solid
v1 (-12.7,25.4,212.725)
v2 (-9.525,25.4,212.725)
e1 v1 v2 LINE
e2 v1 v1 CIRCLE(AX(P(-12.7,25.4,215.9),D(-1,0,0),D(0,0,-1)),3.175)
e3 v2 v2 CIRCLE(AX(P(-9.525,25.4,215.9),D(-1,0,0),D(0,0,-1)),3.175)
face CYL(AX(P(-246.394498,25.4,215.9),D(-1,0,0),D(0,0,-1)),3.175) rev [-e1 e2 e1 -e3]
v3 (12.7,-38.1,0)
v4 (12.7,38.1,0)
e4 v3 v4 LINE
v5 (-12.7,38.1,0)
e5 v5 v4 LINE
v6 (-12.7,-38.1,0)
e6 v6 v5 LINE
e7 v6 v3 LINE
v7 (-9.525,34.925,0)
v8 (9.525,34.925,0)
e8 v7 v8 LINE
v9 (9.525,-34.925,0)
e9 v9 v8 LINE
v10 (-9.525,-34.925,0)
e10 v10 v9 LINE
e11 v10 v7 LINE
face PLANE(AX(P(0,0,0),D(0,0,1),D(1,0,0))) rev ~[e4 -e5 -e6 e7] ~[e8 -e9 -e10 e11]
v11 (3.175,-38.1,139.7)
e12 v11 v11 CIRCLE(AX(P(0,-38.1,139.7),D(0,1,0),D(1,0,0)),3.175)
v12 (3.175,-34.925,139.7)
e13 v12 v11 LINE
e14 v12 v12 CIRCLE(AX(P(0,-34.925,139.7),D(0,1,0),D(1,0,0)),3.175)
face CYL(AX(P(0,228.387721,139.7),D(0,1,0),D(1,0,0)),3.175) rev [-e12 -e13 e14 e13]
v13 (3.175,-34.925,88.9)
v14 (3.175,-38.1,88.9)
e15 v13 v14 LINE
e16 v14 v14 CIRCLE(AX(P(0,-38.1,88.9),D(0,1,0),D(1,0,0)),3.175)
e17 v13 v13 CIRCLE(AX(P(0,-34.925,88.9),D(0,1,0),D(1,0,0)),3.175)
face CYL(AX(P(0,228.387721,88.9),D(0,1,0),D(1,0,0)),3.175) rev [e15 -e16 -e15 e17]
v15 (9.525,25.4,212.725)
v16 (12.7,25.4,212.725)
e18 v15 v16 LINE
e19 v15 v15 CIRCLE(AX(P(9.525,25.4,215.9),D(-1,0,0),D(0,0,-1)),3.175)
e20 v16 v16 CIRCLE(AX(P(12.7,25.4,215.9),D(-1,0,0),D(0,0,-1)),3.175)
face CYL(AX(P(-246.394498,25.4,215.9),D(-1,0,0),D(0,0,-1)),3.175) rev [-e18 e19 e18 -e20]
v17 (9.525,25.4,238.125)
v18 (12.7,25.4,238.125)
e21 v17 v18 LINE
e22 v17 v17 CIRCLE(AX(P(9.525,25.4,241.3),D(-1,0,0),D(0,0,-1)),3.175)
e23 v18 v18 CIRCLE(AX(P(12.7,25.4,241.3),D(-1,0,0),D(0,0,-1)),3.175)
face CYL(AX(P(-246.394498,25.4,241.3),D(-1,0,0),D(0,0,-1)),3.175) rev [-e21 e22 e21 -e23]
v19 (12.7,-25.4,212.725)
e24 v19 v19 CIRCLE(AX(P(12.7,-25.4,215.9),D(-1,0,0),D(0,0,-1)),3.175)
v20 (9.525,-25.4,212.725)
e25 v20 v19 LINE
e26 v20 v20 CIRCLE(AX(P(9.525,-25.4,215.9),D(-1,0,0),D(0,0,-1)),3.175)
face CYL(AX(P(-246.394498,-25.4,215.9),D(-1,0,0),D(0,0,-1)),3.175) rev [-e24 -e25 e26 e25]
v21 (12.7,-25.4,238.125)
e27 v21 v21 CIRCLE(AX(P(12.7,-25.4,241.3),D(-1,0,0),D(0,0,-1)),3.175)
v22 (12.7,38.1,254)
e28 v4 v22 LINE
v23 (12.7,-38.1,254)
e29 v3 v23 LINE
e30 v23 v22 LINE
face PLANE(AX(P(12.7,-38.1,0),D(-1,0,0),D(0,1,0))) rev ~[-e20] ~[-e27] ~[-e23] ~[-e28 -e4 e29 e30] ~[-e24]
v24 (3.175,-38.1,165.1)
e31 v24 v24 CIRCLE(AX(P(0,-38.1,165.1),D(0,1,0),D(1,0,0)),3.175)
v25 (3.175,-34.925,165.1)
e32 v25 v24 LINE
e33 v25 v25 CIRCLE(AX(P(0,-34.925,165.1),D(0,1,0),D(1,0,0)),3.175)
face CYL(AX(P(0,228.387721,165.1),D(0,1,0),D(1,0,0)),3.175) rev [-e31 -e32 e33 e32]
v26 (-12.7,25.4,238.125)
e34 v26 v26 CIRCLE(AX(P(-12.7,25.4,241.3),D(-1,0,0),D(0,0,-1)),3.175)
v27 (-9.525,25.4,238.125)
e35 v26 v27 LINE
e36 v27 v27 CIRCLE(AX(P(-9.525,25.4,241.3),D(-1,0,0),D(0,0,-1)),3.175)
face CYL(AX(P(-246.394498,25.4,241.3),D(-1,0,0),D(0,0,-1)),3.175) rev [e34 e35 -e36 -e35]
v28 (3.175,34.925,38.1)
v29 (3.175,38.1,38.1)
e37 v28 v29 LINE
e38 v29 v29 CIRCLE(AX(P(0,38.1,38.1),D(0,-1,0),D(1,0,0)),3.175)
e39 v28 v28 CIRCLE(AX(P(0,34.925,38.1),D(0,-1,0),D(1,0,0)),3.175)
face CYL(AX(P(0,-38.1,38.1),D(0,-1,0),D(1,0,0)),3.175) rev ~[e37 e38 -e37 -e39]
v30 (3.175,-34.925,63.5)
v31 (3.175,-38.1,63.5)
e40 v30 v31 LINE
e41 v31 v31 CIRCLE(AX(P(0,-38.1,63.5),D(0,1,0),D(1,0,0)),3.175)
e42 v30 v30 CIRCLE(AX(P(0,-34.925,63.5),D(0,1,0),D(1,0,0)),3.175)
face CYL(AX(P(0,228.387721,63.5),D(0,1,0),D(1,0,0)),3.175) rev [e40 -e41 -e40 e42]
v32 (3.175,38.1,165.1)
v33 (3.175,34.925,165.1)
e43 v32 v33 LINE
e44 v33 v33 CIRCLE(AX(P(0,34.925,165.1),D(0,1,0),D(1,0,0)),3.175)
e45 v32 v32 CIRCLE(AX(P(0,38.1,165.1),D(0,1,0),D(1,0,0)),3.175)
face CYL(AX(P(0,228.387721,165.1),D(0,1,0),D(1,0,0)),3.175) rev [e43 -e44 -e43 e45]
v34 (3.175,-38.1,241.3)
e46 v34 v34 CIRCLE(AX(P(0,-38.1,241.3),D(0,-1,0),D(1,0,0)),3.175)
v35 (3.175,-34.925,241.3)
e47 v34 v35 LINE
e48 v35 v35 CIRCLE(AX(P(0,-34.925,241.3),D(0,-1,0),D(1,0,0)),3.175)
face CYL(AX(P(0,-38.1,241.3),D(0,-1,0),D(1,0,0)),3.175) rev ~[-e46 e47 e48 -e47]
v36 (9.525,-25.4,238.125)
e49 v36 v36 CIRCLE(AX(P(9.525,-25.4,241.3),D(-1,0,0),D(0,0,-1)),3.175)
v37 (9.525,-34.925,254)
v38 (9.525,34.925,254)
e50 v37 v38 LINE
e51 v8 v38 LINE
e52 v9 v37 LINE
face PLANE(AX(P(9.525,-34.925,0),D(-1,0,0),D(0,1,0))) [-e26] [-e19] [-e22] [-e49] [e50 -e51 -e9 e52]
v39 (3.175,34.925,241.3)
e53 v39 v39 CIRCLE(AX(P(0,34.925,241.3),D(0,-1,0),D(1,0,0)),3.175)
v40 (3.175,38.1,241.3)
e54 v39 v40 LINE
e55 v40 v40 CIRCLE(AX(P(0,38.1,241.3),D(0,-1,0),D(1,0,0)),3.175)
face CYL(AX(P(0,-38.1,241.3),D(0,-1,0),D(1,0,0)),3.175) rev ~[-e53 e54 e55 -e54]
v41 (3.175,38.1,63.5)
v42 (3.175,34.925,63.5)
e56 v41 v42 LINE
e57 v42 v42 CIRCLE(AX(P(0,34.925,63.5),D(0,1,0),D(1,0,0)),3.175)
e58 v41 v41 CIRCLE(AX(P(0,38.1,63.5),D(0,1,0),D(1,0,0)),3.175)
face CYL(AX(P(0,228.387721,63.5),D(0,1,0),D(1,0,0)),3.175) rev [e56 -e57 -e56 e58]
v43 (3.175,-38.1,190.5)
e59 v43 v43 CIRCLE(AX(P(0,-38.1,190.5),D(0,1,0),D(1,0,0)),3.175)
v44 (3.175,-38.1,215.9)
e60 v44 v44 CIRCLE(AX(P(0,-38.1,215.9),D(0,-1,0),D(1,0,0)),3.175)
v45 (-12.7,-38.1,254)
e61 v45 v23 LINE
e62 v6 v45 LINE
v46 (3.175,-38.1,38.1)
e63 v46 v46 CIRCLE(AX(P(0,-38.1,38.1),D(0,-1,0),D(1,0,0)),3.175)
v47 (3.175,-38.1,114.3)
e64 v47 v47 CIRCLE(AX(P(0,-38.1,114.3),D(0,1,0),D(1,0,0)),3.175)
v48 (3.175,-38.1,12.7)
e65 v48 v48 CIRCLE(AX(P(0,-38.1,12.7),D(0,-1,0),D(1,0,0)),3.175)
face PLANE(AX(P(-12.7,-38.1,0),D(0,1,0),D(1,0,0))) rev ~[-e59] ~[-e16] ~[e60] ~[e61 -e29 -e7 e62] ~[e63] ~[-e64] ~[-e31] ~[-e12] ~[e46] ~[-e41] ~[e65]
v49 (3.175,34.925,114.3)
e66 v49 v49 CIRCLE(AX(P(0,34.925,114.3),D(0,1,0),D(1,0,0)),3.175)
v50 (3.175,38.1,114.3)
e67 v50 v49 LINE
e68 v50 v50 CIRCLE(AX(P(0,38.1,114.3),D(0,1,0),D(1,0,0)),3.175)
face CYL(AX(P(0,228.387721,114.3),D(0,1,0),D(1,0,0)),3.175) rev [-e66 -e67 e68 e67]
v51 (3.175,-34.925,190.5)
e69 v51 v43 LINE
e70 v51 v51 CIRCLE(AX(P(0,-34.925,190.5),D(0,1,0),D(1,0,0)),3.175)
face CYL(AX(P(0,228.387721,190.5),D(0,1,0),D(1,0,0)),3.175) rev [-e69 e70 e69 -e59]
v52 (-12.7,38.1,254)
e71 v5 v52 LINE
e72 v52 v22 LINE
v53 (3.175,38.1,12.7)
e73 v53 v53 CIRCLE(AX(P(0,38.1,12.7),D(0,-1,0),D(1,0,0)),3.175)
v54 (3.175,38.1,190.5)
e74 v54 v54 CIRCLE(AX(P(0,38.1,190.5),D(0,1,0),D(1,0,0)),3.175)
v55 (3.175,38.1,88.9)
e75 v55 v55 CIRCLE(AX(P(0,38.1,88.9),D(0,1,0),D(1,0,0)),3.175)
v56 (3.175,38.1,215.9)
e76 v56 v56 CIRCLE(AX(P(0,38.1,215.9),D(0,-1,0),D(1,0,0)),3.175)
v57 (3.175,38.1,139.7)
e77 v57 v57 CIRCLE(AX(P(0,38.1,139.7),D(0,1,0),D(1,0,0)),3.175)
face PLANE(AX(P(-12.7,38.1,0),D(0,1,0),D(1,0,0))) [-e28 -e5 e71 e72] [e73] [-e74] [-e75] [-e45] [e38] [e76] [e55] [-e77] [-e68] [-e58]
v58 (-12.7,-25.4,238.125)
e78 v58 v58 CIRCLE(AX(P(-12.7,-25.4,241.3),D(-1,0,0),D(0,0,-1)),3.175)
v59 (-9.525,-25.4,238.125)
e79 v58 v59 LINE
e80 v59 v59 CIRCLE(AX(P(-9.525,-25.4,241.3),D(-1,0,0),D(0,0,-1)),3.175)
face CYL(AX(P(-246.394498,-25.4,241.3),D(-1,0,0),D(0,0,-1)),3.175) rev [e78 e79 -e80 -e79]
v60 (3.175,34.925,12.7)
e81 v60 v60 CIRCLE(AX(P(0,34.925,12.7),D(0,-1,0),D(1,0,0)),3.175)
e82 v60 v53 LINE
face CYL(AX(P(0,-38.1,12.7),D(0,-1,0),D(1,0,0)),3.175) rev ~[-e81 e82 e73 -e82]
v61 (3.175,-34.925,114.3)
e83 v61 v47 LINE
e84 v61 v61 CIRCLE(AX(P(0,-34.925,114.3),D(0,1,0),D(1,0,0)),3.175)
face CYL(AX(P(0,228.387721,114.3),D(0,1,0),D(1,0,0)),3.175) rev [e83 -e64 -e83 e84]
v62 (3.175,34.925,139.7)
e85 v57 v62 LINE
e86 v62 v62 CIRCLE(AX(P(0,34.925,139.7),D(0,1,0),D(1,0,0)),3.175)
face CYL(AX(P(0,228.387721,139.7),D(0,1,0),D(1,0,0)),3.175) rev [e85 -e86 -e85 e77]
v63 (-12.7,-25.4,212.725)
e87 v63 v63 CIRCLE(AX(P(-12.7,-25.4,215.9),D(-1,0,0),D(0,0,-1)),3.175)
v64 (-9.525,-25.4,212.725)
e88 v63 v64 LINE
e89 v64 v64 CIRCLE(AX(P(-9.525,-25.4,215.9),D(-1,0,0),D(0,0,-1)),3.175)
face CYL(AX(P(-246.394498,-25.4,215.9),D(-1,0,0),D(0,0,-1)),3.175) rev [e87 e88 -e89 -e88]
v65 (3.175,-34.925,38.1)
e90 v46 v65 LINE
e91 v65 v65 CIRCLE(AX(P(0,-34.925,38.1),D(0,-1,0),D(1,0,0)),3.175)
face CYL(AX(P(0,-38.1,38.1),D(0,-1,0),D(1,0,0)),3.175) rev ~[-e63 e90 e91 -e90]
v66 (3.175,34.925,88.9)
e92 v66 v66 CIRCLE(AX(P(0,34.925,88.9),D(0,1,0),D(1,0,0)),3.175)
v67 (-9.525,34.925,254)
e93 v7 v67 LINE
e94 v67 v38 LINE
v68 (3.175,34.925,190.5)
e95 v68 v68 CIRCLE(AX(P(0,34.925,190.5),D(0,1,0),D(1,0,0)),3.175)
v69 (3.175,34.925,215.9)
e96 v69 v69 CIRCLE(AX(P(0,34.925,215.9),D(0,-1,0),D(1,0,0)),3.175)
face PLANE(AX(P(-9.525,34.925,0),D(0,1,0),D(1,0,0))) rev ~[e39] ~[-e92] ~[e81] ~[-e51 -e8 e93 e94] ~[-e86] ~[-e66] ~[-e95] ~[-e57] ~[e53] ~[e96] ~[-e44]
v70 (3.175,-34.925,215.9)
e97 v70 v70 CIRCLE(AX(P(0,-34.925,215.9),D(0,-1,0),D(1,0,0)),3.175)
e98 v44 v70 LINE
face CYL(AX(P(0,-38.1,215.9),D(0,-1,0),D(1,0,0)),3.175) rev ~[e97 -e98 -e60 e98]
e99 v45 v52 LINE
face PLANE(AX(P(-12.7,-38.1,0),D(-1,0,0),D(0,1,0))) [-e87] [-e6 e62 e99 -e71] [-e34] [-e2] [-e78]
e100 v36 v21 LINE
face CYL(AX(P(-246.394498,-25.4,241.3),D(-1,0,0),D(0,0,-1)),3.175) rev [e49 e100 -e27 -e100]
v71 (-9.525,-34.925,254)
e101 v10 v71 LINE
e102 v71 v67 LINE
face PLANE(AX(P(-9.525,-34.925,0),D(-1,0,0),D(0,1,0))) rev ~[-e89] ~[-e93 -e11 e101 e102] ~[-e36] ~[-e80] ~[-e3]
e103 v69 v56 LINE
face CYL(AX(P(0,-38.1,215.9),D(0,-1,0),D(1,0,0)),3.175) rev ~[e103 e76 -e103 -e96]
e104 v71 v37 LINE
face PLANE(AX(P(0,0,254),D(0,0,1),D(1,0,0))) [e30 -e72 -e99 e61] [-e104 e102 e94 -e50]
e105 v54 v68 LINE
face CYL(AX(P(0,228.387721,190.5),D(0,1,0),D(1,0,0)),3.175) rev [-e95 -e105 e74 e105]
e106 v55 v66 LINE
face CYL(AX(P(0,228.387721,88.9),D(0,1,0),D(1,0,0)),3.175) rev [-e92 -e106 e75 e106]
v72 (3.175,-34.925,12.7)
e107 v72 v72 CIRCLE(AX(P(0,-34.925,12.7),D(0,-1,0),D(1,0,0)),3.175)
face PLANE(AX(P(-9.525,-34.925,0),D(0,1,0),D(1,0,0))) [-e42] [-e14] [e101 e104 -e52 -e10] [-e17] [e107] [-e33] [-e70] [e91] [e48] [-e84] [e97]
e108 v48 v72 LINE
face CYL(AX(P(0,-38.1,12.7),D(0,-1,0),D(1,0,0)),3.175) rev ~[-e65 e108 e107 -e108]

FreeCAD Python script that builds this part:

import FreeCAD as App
import Part
import Sketcher
Q = App.Units.Quantity

doc = App.newDocument("Part")
body = doc.addObject("PartDesign::Body", "Body")

# Sketch on XY plane
sketch1 = body.newObject("Sketcher::SketchObject", "Sketch")
sketch1.AttachmentSupport = (doc.getObject("XY_Plane"), [""])
sketch1.MapMode = "FlatFace"
sketch1.addGeometry([
    Part.LineSegment(App.Vector(-12.7, 38.1, 0), App.Vector(-12.7, -38.1, 0)),  # 0
    Part.LineSegment(App.Vector(-12.7, -38.1, 0), App.Vector(12.7, -38.1, 0)),  # 1
    Part.LineSegment(App.Vector(12.7, -38.1, 0), App.Vector(12.7, 38.1, 0)),  # 2
    Part.LineSegment(App.Vector(12.7, 38.1, 0), App.Vector(-12.7, 38.1, 0)),  # 3
    Part.LineSegment(App.Vector(9.525, -34.925, 0), App.Vector(-9.525, -34.925, 0)),  # 4
    Part.LineSegment(App.Vector(-9.525, -34.925, 0), App.Vector(-9.525, 34.925, 0)),  # 5
    Part.LineSegment(App.Vector(-9.525, 34.925, 0), App.Vector(9.525, 34.925, 0)),  # 6
    Part.LineSegment(App.Vector(9.525, 34.925, 0), App.Vector(9.525, -34.925, 0)),  # 7
], False)
sketch1.addConstraint([
    Sketcher.Constraint("Coincident", 0, 2, 1, 1),
    Sketcher.Constraint("Coincident", 1, 2, 2, 1),
    Sketcher.Constraint("Coincident", 2, 2, 3, 1),
    Sketcher.Constraint("Coincident", 3, 2, 0, 1),
    Sketcher.Constraint("Coincident", 4, 2, 5, 1),
    Sketcher.Constraint("Coincident", 5, 2, 6, 1),
    Sketcher.Constraint("Coincident", 6, 2, 7, 1),
    Sketcher.Constraint("Coincident", 7, 2, 4, 1),
    Sketcher.Constraint("Vertical", 0),
    Sketcher.Constraint("Horizontal", 1),
    Sketcher.Constraint("Vertical", 2),
    Sketcher.Constraint("Horizontal", 3),
    Sketcher.Constraint("Horizontal", 4),
    Sketcher.Constraint("Vertical", 5),
    Sketcher.Constraint("Horizontal", 6),
    Sketcher.Constraint("Vertical", 7),
    Sketcher.Constraint("Symmetric", 0, 2, 2, 2, -1, 1),
    Sketcher.Constraint("Symmetric", 4, 2, 6, 2, -1, 1),
    Sketcher.Constraint("DistanceX", 1, 1, 1, 2, Q("1 in")),
    Sketcher.Constraint("DistanceY", 0, 2, 0, 1, Q("3 in")),
    Sketcher.Constraint("DistanceX", 4, 2, 4, 1, Q("0.75 in")),
    Sketcher.Constraint("DistanceY", 5, 1, 5, 2, Q("2.75 in")),
])
pad1 = body.newObject("PartDesign::Pad", "Pad")
pad1.Profile = sketch1
pad1.Length = Q("10 in")

# Sketch on XZ plane
sketch2 = body.newObject("Sketcher::SketchObject", "Sketch001")
sketch2.AttachmentSupport = (doc.getObject("XZ_Plane"), [""])
sketch2.MapMode = "FlatFace"
sketch2.AttachmentOffset = App.Placement(App.Vector(0, 0, 1.5 * 25.4), App.Rotation())
sketch2.addGeometry([
    Part.Circle(App.Vector(0, 12.7, 0), App.Vector(0, 0, 1), 3.175),
    Part.Circle(App.Vector(0, 38.1, 0), App.Vector(0, 0, 1), 3.175),
    Part.Circle(App.Vector(0, 241.3, 0), App.Vector(0, 0, 1), 3.175),
    Part.Circle(App.Vector(0, 215.9, 0), App.Vector(0, 0, 1), 3.175),
], False)
sketch2.addConstraint([
    Sketcher.Constraint("Equal", 0, 1),
    Sketcher.Constraint("Equal", 1, 2),
    Sketcher.Constraint("Equal", 2, 3),
    Sketcher.Constraint("PointOnObject", 0, 3, -2),
    Sketcher.Constraint("PointOnObject", 1, 3, -2),
    Sketcher.Constraint("PointOnObject", 2, 3, -2),
    Sketcher.Constraint("PointOnObject", 3, 3, -2),
    Sketcher.Constraint("Diameter", 0, Q("0.25 in")),
    Sketcher.Constraint("DistanceY", 0, 3, 1, 3, Q("1 in")),
    Sketcher.Constraint("DistanceY", 1, 3, 2, 3, Q("8 in")),
    Sketcher.Constraint("DistanceY", 3, 3, 2, 3, Q("1 in")),
    Sketcher.Constraint("DistanceY", -1, 1, 0, 3, Q("0.5 in")),
])
pocket1 = body.newObject("PartDesign::Pocket", "Pocket")
pocket1.Profile = sketch2
pocket1.Length = Q("31.75 in")

# Sketch on XZ plane
sketch3 = body.newObject("Sketcher::SketchObject", "Sketch002")
sketch3.AttachmentSupport = (doc.getObject("XZ_Plane"), [""])
sketch3.MapMode = "FlatFace"
sketch3.AttachmentOffset = App.Placement(App.Vector(0, 0, 1.5 * 25.4), App.Rotation())
sketch3.addGeometry([
    Part.Circle(App.Vector(0, 88.9, 0), App.Vector(0, 0, 1), 3.175),
    Part.Circle(App.Vector(0, 114.3, 0), App.Vector(0, 0, 1), 3.175),
    Part.Circle(App.Vector(0, 165.1, 0), App.Vector(0, 0, 1), 3.175),
    Part.Circle(App.Vector(0, 139.7, 0), App.Vector(0, 0, 1), 3.175),
], False)
sketch3.addConstraint([
    Sketcher.Constraint("Equal", 0, 1),
    Sketcher.Constraint("Equal", 1, 2),
    Sketcher.Constraint("Equal", 2, 3),
    Sketcher.Constraint("PointOnObject", 0, 3, -2),
    Sketcher.Constraint("PointOnObject", 1, 3, -2),
    Sketcher.Constraint("PointOnObject", 2, 3, -2),
    Sketcher.Constraint("PointOnObject", 3, 3, -2),
    Sketcher.Constraint("Diameter", 0, Q("0.25 in")),
    Sketcher.Constraint("DistanceY", 0, 3, 1, 3, Q("1 in")),
    Sketcher.Constraint("DistanceY", 1, 3, 2, 3, Q("2 in")),
    Sketcher.Constraint("DistanceY", 1, 3, 3, 3, Q("1 in")),
    Sketcher.Constraint("DistanceY", -1, 1, 0, 3, Q("3.5 in")),
])
pocket2 = body.newObject("PartDesign::Pocket", "Pocket001")
pocket2.Profile = sketch3
pocket2.Type = "ThroughAll"
pocket2.Midplane = True

# Sketch on XZ plane
sketch4 = body.newObject("Sketcher::SketchObject", "Sketch003")
sketch4.AttachmentSupport = (doc.getObject("XZ_Plane"), [""])
sketch4.MapMode = "FlatFace"
sketch4.AttachmentOffset = App.Placement(App.Vector(0, 0, 1.5 * 25.4), App.Rotation())
sketch4.addGeometry([
    Part.Circle(App.Vector(0, 190.5, 0), App.Vector(0, 0, 1), 3.175),
    Part.Circle(App.Vector(0, 215.9, 0), App.Vector(0, 0, 1), 3.175),
    Part.Circle(App.Vector(0, 63.5, 0), App.Vector(0, 0, 1), 3.175),
    Part.Circle(App.Vector(0, 38.1, 0), App.Vector(0, 0, 1), 3.175),
], False)
sketch4.addConstraint([
    Sketcher.Constraint("Equal", 0, 1),
    Sketcher.Constraint("Equal", 1, 2),
    Sketcher.Constraint("Equal", 2, 3),
    Sketcher.Constraint("PointOnObject", 0, 3, -2),
    Sketcher.Constraint("PointOnObject", 1, 3, -2),
    Sketcher.Constraint("PointOnObject", 2, 3, -2),
    Sketcher.Constraint("PointOnObject", 3, 3, -2),
    Sketcher.Constraint("Diameter", 0, Q("0.25 in")),
    Sketcher.Constraint("DistanceY", 0, 3, 1, 3, Q("1 in")),
    Sketcher.Constraint("DistanceY", 2, 3, 0, 3, Q("5 in")),
    Sketcher.Constraint("DistanceY", 3, 3, 2, 3, Q("1 in")),
    Sketcher.Constraint("DistanceY", -1, 1, 0, 3, Q("7.5 in")),
])
pocket3 = body.newObject("PartDesign::Pocket", "Pocket002")
pocket3.Profile = sketch4
pocket3.Type = "ThroughAll"
pocket3.Midplane = True

# Sketch on YZ plane
sketch5 = body.newObject("Sketcher::SketchObject", "Sketch004")
sketch5.AttachmentSupport = (doc.getObject("YZ_Plane"), [""])
sketch5.MapMode = "FlatFace"
sketch5.AttachmentOffset = App.Placement(App.Vector(0, 0, 0.5 * 25.4), App.Rotation())
sketch5.addGeometry([
    Part.Circle(App.Vector(-25.4, 241.3, 0), App.Vector(0, 0, 1), 3.175),
    Part.Circle(App.Vector(-25.4, 215.9, 0), App.Vector(0, 0, 1), 3.175),
    Part.Circle(App.Vector(25.4, 215.9, 0), App.Vector(0, 0, 1), 3.175),
    Part.Circle(App.Vector(25.4, 241.3, 0), App.Vector(0, 0, 1), 3.175),
], False)
sketch5.addConstraint([
    Sketcher.Constraint("Equal", 0, 1),
    Sketcher.Constraint("Equal", 1, 2),
    Sketcher.Constraint("Equal", 2, 3),
    Sketcher.Constraint("Symmetric", 1, 3, 2, 3, -2),
    Sketcher.Constraint("Symmetric", 0, 3, 3, 3, -2),
    Sketcher.Constraint("Vertical", 0, 3, 1, 3),
    Sketcher.Constraint("Diameter", 0, Q("0.25 in")),
    Sketcher.Constraint("DistanceX", 0, 3, -1, 1, Q("1 in")),
    Sketcher.Constraint("DistanceY", 1, 3, 0, 3, Q("1 in")),
    Sketcher.Constraint("DistanceY", -1, 1, 0, 3, Q("9.5 in")),
])
pocket4 = body.newObject("PartDesign::Pocket", "Pocket003")
pocket4.Profile = sketch5
pocket4.Type = "ThroughAll"
pocket4.Midplane = True

doc.recompute()
